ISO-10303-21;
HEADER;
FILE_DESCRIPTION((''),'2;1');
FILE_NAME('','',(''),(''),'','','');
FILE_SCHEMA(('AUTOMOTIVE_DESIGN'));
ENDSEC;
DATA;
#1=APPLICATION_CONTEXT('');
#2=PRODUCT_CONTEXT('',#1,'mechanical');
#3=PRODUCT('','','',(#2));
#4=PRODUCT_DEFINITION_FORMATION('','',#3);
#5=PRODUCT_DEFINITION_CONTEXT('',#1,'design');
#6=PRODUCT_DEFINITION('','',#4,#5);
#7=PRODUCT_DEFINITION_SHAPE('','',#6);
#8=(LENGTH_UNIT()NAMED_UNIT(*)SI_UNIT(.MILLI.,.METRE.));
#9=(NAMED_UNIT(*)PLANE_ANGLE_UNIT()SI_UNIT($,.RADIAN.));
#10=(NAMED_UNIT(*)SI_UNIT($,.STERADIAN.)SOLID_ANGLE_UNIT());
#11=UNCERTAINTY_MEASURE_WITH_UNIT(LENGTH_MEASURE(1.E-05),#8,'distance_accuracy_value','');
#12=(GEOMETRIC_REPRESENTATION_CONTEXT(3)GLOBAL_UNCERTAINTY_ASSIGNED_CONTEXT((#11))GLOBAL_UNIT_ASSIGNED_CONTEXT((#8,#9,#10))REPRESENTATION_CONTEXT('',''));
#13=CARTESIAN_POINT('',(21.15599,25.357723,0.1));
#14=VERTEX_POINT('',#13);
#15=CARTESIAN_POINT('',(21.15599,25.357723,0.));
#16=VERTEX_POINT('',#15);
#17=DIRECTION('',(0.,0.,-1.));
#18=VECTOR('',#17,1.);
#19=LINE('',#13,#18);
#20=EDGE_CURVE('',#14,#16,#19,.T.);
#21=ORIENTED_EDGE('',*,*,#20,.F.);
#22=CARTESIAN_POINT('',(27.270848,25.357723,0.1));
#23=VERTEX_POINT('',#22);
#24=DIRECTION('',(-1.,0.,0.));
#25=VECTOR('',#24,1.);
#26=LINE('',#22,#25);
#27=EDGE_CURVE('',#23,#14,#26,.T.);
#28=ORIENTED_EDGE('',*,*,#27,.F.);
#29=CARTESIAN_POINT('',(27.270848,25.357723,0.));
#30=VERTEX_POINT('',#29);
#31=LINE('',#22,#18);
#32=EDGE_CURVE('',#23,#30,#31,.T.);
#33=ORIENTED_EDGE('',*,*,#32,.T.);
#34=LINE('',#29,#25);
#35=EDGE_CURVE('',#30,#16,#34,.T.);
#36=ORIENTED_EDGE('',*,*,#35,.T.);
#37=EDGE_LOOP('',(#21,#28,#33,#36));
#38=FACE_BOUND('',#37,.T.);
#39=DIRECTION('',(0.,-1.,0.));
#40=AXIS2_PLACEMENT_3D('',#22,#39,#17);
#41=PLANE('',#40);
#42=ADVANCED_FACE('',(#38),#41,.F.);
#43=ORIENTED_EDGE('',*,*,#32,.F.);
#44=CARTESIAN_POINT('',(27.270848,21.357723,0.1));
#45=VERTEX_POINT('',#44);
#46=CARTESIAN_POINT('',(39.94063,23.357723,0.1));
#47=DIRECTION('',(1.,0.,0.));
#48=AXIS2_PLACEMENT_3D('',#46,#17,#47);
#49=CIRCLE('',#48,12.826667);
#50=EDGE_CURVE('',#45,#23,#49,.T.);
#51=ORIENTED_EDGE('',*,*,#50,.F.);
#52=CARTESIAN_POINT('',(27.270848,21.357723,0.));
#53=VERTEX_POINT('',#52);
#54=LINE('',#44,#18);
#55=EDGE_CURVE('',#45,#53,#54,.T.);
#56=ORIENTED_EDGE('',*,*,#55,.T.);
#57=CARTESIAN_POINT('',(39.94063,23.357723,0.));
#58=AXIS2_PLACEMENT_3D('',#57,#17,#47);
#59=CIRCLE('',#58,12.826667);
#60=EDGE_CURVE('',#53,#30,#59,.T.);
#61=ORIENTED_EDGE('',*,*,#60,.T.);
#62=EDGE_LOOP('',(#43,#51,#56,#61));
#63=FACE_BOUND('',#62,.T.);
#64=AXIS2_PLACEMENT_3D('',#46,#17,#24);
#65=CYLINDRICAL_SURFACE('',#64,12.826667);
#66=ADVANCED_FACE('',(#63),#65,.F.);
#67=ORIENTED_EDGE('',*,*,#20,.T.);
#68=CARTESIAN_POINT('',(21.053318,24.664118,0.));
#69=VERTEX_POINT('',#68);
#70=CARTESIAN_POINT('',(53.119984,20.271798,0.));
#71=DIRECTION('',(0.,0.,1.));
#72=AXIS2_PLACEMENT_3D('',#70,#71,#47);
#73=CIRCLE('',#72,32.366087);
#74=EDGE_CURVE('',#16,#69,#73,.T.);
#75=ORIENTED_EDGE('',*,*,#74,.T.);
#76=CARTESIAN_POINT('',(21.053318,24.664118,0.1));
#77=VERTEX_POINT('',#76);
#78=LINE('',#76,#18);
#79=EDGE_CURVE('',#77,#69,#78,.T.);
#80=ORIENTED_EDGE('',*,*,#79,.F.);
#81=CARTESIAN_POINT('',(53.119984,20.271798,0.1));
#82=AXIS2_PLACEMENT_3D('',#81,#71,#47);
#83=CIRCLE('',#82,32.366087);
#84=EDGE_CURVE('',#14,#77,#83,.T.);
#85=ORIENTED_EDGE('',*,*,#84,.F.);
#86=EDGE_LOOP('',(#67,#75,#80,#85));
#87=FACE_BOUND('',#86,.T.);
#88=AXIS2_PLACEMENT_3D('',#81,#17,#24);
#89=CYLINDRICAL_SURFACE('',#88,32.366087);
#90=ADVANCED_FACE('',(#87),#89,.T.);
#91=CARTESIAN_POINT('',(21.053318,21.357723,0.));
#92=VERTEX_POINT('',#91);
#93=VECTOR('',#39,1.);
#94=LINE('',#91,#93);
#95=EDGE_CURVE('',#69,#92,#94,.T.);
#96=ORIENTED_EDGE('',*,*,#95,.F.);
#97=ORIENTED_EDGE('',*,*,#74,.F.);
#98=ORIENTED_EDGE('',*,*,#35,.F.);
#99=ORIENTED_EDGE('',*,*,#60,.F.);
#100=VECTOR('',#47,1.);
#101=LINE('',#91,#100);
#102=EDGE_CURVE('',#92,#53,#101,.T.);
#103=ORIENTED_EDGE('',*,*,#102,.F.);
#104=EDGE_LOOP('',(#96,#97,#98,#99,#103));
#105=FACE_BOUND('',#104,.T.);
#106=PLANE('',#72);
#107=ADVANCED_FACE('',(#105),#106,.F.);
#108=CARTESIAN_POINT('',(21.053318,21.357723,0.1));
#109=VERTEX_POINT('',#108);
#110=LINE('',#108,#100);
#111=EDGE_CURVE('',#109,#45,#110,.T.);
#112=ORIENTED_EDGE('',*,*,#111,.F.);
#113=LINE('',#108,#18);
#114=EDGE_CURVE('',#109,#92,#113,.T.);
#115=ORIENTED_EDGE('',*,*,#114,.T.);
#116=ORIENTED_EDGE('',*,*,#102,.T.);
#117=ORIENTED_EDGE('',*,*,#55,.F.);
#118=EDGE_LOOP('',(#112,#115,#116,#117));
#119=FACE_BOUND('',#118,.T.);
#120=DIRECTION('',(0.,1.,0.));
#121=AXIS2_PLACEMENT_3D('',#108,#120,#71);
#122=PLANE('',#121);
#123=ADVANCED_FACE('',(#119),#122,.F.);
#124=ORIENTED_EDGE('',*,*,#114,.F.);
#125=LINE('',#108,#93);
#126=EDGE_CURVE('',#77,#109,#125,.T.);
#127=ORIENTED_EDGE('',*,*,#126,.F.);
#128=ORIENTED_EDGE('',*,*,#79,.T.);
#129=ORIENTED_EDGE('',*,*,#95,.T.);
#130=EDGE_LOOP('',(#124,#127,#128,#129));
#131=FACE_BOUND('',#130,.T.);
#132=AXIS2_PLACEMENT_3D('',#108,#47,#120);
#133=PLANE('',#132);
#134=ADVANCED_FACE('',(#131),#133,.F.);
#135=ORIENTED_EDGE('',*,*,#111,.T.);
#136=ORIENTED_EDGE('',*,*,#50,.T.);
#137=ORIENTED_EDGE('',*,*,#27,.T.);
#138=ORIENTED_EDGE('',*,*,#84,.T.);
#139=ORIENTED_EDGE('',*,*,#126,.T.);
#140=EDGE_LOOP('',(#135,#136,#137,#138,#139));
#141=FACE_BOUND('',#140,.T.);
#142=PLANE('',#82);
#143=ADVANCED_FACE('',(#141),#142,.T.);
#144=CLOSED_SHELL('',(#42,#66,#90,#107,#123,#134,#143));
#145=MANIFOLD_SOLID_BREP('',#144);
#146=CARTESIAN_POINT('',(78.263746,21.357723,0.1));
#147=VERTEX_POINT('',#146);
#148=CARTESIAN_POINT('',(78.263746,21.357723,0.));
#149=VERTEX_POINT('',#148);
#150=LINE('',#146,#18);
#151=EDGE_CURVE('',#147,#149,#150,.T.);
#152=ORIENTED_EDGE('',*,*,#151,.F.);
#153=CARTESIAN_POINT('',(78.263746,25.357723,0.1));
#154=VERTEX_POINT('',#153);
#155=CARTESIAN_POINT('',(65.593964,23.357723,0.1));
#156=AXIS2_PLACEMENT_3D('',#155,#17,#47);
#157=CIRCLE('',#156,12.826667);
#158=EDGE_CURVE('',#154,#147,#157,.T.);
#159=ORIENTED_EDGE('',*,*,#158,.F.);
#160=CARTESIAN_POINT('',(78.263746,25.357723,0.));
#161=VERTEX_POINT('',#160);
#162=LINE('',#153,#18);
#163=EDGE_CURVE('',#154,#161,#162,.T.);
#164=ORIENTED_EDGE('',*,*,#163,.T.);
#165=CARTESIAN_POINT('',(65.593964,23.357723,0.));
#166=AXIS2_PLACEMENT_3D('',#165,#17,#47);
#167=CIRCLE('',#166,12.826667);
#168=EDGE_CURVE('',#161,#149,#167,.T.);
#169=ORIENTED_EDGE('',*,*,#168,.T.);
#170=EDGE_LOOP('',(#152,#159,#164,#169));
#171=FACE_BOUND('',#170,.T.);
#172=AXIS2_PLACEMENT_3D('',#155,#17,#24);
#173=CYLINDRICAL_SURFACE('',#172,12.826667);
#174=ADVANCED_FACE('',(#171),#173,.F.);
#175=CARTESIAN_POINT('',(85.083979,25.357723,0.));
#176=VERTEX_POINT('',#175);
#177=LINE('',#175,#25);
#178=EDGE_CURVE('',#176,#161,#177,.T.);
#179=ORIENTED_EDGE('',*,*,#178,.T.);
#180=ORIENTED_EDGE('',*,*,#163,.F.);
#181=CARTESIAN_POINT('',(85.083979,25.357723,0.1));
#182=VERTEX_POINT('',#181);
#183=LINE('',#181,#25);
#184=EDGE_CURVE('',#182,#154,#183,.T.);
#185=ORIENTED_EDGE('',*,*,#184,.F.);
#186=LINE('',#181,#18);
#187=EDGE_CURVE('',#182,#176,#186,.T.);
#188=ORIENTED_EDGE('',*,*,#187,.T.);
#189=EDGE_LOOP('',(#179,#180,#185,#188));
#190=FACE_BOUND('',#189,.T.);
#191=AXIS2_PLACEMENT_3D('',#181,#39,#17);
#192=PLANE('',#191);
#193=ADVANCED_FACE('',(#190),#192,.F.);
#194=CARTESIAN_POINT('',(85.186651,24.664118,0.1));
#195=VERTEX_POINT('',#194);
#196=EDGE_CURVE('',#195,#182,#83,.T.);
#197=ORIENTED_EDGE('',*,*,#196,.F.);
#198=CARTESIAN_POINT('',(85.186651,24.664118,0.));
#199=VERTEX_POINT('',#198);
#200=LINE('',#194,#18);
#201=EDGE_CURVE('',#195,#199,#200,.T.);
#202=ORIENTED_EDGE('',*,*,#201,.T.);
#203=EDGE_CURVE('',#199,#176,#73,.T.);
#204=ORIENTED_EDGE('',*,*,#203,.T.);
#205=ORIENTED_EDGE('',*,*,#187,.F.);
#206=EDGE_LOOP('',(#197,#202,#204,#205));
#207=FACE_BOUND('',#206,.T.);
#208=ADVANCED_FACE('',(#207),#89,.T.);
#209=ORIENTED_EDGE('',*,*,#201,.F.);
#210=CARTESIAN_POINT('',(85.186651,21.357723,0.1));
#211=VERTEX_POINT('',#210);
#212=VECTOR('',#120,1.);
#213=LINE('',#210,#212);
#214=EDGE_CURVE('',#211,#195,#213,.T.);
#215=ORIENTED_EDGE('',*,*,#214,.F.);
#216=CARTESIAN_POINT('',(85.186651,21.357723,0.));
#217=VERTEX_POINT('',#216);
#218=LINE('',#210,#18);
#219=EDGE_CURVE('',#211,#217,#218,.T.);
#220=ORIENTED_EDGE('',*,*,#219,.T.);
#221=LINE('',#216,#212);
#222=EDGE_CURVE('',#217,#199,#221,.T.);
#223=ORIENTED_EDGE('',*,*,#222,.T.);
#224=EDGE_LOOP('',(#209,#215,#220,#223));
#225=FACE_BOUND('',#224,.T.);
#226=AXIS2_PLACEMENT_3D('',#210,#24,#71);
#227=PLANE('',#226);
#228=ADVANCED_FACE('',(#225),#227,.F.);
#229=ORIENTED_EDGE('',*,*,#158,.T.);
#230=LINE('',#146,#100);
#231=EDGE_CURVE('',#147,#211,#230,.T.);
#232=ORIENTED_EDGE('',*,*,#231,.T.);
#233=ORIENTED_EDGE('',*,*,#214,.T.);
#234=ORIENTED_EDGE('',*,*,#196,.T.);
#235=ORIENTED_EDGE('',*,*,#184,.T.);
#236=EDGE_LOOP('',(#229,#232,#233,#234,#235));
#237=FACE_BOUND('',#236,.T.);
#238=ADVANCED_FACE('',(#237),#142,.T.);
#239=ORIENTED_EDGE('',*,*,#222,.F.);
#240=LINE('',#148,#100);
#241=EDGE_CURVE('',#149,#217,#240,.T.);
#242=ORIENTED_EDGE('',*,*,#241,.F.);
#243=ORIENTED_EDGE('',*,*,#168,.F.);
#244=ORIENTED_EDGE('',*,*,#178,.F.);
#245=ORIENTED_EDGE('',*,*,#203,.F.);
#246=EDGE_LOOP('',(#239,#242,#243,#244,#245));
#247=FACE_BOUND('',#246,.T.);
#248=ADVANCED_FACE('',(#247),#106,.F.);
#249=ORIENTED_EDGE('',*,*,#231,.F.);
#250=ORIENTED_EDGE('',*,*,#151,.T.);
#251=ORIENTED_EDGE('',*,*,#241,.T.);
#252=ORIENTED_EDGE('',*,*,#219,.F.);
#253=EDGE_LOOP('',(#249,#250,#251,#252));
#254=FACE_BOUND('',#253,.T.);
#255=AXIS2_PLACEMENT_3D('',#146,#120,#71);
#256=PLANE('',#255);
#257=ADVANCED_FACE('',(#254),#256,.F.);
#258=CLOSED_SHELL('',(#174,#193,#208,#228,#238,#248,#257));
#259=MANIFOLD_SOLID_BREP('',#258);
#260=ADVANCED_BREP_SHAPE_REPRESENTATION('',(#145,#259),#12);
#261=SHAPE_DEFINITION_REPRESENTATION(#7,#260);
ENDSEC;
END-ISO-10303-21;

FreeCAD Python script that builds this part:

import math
import FreeCAD as App
import Part
import Sketcher
from FreeCAD import Vector
Q = App.Units.Quantity

doc = App.newDocument("Part")
params = doc.addObject("Spreadsheet::Sheet", "Params")
for row, (alias, value) in enumerate([
    ("pad1_length", "0.1 mm"),
    ("pad2_length", "0.1 mm"),
], start=1):
    params.set(f"A{row}", alias)
    params.set(f"B{row}", "=" + value)
    params.setAlias(f"B{row}", alias)

body = doc.addObject("PartDesign::Body", "Body")

# Sketch on XY plane
sketch1 = body.newObject("Sketcher::SketchObject", "Sketch")
sketch1.AttachmentSupport = (doc.getObject("XY_Plane"), [""])
sketch1.MapMode = "FlatFace"
sketch1.addGeometry(Part.LineSegment(Vector(85.186651, 21.357723, 0), Vector(85.186651, 24.664118, 0)), False)
sketch1.addGeometry(Part.ArcOfCircle(Part.Circle(Vector(53.119972, 20.271796, 0), Vector(0, 0, 1), 32.366099), math.radians(7.799533), math.radians(9.040784)), False)
sketch1.addGeometry(Part.LineSegment(Vector(85.083979, 25.357723, 0), Vector(78.263746, 25.357723, 0)), False)
sketch1.addGeometry(Part.ArcOfCircle(Part.Circle(Vector(65.593964, 23.357723, 0), Vector(0, 0, 1), 12.826667), math.radians(-8.970456), math.radians(8.970456)), False)
sketch1.addGeometry(Part.LineSegment(Vector(78.263746, 21.357723, 0), Vector(85.186651, 21.357723, 0)), False)
sketch1.addConstraint(Sketcher.Constraint("Coincident", 0, 2, 1, 1))
sketch1.addConstraint(Sketcher.Constraint("Coincident", 1, 2, 2, 1))
sketch1.addConstraint(Sketcher.Constraint("Coincident", 2, 2, 3, 2))
sketch1.addConstraint(Sketcher.Constraint("Coincident", 3, 1, 4, 1))
sketch1.addConstraint(Sketcher.Constraint("Coincident", 4, 2, 0, 1))
sketch1.addConstraint(Sketcher.Constraint("Vertical", 0))
sketch1.addConstraint(Sketcher.Constraint("Horizontal", 2))
sketch1.addConstraint(Sketcher.Constraint("Horizontal", 4))
sketch1.addConstraint(Sketcher.Constraint("Vertical", 2, 2, 3, 1))
sketch1.addConstraint(Sketcher.Constraint("DistanceY", 3, 3, 1, 2, Q("2 mm")))
sketch1.addConstraint(Sketcher.Constraint("Radius", 1, Q("32.366099 mm")))
sketch1.addConstraint(Sketcher.Constraint("Radius", 3, Q("12.826667 mm")))
sketch1.addConstraint(Sketcher.Constraint("DistanceX", 2, 2, 2, 1, Q("6.820233 mm")))
sketch1.addConstraint(Sketcher.Constraint("DistanceX", 4, 1, 4, 2, Q("6.922905 mm")))
sketch1.addConstraint(Sketcher.Constraint("DistanceY", 0, 1, 0, 2, Q("3.306395 mm")))
sketch1.addConstraint(Sketcher.Constraint("DistanceX", -1, 1, 0, 2, Q("85.186651 mm")))
sketch1.addConstraint(Sketcher.Constraint("DistanceY", -1, 1, 0, 2, Q("24.664118 mm")))
pad1 = body.newObject("PartDesign::Pad", "Pad")
pad1.Profile = sketch1
pad1.setExpression("Length", "Params.pad1_length")
body2 = doc.addObject("PartDesign::Body", "Body001")

# Sketch on XY plane
sketch2 = body2.newObject("Sketcher::SketchObject", "Sketch001")
sketch2.AttachmentSupport = (doc.getObject("XY_Plane001"), [""])
sketch2.MapMode = "FlatFace"
sketch2.addGeometry(Part.LineSegment(Vector(27.270848, 25.357723, 0), Vector(21.15599, 25.357723, 0)), False)
sketch2.addGeometry(Part.ArcOfCircle(Part.Circle(Vector(53.119979, 20.271798, 0), Vector(0, 0, 1), 32.366082), math.radians(170.959216), math.radians(172.200468)), False)
sketch2.addGeometry(Part.LineSegment(Vector(21.053318, 24.664118, 0), Vector(21.053318, 21.357723, 0)), False)
sketch2.addGeometry(Part.LineSegment(Vector(21.053318, 21.357723, 0), Vector(27.270848, 21.357723, 0)), False)
sketch2.addGeometry(Part.ArcOfCircle(Part.Circle(Vector(39.94063, 23.357723, 0), Vector(0, 0, 1), 12.826667), math.radians(171.029544), math.radians(188.970456)), False)
sketch2.addConstraint(Sketcher.Constraint("Coincident", 0, 2, 1, 1))
sketch2.addConstraint(Sketcher.Constraint("Coincident", 1, 2, 2, 1))
sketch2.addConstraint(Sketcher.Constraint("Coincident", 2, 2, 3, 1))
sketch2.addConstraint(Sketcher.Constraint("Coincident", 3, 2, 4, 2))
sketch2.addConstraint(Sketcher.Constraint("Coincident", 4, 1, 0, 1))
sketch2.addConstraint(Sketcher.Constraint("Horizontal", 0))
sketch2.addConstraint(Sketcher.Constraint("Vertical", 2))
sketch2.addConstraint(Sketcher.Constraint("Horizontal", 3))
sketch2.addConstraint(Sketcher.Constraint("Vertical", 3, 2, 4, 1))
sketch2.addConstraint(Sketcher.Constraint("DistanceY", 4, 3, 0, 2, Q("2 mm")))
sketch2.addConstraint(Sketcher.Constraint("Radius", 1, Q("32.366082 mm")))
sketch2.addConstraint(Sketcher.Constraint("Radius", 4, Q("12.826667 mm")))
sketch2.addConstraint(Sketcher.Constraint("DistanceX", 0, 2, 0, 1, Q("6.114859 mm")))
sketch2.addConstraint(Sketcher.Constraint("DistanceX", 3, 1, 3, 2, Q("6.217531 mm")))
sketch2.addConstraint(Sketcher.Constraint("DistanceY", -1, 1, 1, 3, Q("20.271798 mm")))
sketch2.addConstraint(Sketcher.Constraint("DistanceY", 2, 2, 2, 1, Q("3.306395 mm")))
sketch2.addConstraint(Sketcher.Constraint("DistanceX", -1, 1, 1, 3, Q("53.119979 mm")))
pad2 = body2.newObject("PartDesign::Pad", "Pad001")
pad2.Profile = sketch2
pad2.setExpression("Length", "Params.pad2_length")

doc.recompute()
